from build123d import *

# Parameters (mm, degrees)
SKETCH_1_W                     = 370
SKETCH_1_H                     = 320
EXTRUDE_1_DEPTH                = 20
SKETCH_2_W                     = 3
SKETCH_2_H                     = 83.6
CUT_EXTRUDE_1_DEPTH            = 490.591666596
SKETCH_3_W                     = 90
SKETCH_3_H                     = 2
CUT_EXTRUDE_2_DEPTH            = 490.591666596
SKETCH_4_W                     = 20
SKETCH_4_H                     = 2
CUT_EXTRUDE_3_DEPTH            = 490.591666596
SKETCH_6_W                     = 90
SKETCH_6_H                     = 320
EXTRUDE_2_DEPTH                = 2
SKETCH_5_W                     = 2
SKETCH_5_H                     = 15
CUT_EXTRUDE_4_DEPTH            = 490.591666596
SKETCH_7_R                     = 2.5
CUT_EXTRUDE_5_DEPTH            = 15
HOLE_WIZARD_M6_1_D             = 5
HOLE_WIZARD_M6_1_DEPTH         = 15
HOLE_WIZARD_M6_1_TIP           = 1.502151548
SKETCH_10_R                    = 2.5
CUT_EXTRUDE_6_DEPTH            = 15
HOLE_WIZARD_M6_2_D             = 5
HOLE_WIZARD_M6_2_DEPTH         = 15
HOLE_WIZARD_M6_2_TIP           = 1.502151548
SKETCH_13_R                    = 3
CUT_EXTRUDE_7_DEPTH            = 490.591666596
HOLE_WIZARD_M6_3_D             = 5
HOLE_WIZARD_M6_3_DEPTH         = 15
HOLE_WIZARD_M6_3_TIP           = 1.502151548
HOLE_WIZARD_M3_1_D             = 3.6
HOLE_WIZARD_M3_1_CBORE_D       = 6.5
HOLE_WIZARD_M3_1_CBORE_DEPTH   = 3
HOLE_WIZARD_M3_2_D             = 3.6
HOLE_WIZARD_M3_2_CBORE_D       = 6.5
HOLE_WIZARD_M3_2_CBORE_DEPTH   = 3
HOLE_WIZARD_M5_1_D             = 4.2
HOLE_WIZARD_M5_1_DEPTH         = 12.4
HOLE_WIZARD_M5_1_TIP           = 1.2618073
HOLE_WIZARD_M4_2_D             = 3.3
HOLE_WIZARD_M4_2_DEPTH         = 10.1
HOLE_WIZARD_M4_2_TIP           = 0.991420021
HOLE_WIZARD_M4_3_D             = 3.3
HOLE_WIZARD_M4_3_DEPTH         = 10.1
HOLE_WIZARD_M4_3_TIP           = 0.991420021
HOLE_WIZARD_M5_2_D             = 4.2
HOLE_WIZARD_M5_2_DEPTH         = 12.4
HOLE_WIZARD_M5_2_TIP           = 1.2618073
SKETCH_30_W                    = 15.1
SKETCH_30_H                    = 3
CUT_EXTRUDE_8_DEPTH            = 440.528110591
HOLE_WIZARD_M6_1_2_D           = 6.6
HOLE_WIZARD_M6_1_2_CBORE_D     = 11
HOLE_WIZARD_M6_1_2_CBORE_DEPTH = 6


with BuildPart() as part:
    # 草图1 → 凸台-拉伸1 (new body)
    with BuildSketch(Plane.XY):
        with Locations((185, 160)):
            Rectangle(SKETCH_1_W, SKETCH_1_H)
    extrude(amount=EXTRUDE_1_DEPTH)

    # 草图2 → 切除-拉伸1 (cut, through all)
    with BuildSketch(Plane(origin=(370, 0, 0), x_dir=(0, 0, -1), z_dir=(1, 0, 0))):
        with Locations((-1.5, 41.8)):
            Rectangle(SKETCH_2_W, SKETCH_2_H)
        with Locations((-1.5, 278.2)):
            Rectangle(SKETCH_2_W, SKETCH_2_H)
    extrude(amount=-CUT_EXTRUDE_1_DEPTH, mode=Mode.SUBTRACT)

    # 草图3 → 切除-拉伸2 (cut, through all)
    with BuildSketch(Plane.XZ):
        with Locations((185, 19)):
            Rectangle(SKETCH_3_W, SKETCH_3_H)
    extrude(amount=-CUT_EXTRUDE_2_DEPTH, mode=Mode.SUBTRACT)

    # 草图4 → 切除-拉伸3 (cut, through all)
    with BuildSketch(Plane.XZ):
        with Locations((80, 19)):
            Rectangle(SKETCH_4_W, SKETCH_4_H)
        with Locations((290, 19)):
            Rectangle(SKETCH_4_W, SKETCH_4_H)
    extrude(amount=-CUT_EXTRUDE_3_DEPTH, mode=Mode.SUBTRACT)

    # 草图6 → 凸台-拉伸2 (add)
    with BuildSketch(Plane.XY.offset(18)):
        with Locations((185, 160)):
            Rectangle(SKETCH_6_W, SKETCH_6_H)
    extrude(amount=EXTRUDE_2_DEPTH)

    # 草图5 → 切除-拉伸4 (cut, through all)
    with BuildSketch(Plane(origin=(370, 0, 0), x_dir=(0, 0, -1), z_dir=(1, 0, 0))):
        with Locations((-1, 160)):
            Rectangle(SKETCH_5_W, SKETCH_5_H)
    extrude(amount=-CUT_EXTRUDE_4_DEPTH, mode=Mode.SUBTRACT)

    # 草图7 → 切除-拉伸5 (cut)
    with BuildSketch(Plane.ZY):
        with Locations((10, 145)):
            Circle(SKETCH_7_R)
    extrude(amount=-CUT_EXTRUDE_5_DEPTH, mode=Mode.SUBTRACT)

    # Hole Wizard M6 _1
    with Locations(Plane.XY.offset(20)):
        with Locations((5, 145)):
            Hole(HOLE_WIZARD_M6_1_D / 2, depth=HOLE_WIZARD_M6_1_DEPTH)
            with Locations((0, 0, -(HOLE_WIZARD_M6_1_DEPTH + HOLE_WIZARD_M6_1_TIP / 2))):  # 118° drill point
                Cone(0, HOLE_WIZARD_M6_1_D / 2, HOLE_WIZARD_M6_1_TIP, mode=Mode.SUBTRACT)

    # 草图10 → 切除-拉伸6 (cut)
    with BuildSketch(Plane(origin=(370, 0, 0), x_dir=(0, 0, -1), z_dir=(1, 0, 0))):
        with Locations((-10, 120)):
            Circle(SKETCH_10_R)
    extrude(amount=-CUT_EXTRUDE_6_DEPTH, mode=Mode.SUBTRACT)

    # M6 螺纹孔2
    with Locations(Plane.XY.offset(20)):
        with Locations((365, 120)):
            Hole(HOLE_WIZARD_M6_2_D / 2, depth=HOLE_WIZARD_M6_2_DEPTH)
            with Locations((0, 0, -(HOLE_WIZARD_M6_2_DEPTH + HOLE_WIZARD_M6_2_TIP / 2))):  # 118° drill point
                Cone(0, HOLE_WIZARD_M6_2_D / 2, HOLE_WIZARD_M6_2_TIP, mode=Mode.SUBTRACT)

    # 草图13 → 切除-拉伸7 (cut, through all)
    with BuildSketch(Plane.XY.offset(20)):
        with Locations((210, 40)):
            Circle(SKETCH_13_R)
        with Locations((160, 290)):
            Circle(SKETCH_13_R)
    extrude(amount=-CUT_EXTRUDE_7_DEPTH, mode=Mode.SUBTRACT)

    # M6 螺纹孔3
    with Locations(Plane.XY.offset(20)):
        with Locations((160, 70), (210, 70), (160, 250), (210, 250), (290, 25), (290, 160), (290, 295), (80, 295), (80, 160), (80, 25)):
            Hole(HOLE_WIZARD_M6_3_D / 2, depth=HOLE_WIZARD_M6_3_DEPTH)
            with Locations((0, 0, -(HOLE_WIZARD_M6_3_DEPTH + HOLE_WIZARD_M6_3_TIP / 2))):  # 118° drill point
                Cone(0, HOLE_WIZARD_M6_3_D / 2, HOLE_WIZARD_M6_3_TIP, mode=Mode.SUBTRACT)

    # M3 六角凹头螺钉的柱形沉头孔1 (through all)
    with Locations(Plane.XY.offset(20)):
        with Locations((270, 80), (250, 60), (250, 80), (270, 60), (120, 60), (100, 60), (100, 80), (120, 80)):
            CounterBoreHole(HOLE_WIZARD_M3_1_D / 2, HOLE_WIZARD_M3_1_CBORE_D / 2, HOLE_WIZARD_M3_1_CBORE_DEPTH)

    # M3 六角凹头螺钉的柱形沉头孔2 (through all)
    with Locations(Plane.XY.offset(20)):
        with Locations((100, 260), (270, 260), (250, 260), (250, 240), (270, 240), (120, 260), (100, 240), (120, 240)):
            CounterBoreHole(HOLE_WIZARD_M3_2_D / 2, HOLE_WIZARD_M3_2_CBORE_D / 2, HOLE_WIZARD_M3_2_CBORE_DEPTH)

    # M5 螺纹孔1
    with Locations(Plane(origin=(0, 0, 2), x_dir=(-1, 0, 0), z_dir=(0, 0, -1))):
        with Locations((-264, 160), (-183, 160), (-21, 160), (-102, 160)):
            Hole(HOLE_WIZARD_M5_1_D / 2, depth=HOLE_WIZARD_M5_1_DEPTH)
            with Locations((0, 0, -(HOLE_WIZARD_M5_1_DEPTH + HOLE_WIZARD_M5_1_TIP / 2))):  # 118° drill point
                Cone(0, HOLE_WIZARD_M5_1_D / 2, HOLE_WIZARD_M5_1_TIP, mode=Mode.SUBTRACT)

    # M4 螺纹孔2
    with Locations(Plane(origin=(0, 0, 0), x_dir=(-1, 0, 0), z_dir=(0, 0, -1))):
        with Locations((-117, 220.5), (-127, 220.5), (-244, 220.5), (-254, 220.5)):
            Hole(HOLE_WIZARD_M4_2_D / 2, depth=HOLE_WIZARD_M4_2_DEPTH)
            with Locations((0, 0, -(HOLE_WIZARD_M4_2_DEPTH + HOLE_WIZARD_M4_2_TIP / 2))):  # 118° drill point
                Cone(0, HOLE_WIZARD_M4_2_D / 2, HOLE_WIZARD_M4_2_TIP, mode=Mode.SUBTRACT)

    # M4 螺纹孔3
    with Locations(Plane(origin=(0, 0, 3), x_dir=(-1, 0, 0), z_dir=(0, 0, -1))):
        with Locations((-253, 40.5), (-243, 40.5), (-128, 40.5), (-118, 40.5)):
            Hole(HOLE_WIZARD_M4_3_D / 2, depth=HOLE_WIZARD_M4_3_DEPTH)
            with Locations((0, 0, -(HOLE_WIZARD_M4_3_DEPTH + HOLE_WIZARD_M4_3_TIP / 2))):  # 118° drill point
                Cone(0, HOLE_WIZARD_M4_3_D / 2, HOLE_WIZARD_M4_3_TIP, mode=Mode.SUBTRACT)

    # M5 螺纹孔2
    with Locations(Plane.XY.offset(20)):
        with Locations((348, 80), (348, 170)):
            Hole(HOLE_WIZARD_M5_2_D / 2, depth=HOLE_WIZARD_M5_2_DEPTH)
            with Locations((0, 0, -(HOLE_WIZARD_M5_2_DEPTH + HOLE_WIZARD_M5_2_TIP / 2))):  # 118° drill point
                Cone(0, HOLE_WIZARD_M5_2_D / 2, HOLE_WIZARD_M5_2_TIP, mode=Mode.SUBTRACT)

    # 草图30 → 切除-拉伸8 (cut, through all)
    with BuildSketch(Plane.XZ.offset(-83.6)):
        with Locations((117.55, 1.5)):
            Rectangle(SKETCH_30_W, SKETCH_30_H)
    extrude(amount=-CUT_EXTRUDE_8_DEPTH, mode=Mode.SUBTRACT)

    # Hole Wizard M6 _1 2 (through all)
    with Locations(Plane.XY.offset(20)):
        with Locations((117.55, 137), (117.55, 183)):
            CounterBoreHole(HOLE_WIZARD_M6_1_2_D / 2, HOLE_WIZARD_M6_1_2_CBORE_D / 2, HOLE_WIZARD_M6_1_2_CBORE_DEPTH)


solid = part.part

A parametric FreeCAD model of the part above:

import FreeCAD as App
import Part
import Sketcher

V = App.Vector

doc = App.newDocument("Part")
params = doc.addObject("Spreadsheet::Sheet", "Params")
for row, (alias, value) in enumerate([
    ("sketch1_width", "370 mm"),
    ("sketch1_height", "320 mm"),
    ("pad1_length", "20 mm"),
    ("sketch2_height", "3 mm"),
    ("sketch2_width", "83.6 mm"),
    ("sketch3_width", "90 mm"),
    ("sketch3_height", "2 mm"),
    ("sketch4_width", "20 mm"),
    ("sketch4_height", "2 mm"),
    ("sketch5_width", "90 mm"),
    ("sketch5_height", "320 mm"),
    ("pad2_length", "2 mm"),
    ("sketch6_width", "15 mm"),
    ("sketch6_height", "2 mm"),
    ("sketch7_diameter", "5 mm"),
    ("pocket5_length", "15 mm"),
    ("sketch8_diameter", "5 mm"),
    ("hole_diameter", "5 mm"),
    ("hole_depth", "15 mm"),
    ("sketch9_diameter", "5 mm"),
    ("pocket6_length", "15 mm"),
    ("sketch10_diameter", "5 mm"),
    ("hole2_diameter", "5 mm"),
    ("hole2_depth", "15 mm"),
    ("sketch11_diameter", "6 mm"),
    ("sketch12_diameter", "5 mm"),
    ("hole3_diameter", "5 mm"),
    ("hole3_depth", "15 mm"),
    ("sketch13_diameter", "3.6 mm"),
    ("hole4_diameter", "3.6 mm"),
    ("hole4_cbore_diameter", "6.5 mm"),
    ("hole4_cbore_depth", "3 mm"),
    ("sketch14_diameter", "3.6 mm"),
    ("hole5_diameter", "3.6 mm"),
    ("hole5_cbore_diameter", "6.5 mm"),
    ("hole5_cbore_depth", "3 mm"),
    ("sketch15_diameter", "4.2 mm"),
    ("hole6_diameter", "4.2 mm"),
    ("hole6_depth", "12.4 mm"),
    ("sketch16_diameter", "3.3 mm"),
    ("hole7_diameter", "3.3 mm"),
    ("hole7_depth", "10.1 mm"),
    ("sketch17_diameter", "3.3 mm"),
    ("hole8_diameter", "3.3 mm"),
    ("hole8_depth", "10.1 mm"),
    ("sketch18_diameter", "4.2 mm"),
    ("hole9_diameter", "4.2 mm"),
    ("hole9_depth", "12.4 mm"),
    ("sketch19_height", "3 mm"),
    ("sketch19_width", "15.1 mm"),
    ("sketch20_diameter", "6.6 mm"),
    ("hole10_diameter", "6.6 mm"),
    ("hole10_cbore_diameter", "11 mm"),
    ("hole10_cbore_depth", "6 mm"),
], start=1):
    params.set(f"A{row}", alias)
    params.set(f"B{row}", "=" + value)
    params.setAlias(f"B{row}", alias)

body = doc.addObject("PartDesign::Body", "Body")

# Sketch on XY plane
sketch1 = doc.addObject("Sketcher::SketchObject", "Sketch")
body.addObject(sketch1)
sketch1.AttachmentSupport = (doc.XY_Plane, [""])
sketch1.MapMode = "FlatFace"
sketch1.addGeometry([
    Part.LineSegment(V(0, 320, 0), V(0, 0, 0)),
    Part.LineSegment(V(0, 0, 0), V(370, 0, 0)),
    Part.LineSegment(V(370, 0, 0), V(370, 320, 0)),
    Part.LineSegment(V(370, 320, 0), V(0, 320, 0)),
], False)
sketch1.addConstraint([
    Sketcher.Constraint("Coincident", 0, 2, 1, 1),
    Sketcher.Constraint("Coincident", 1, 2, 2, 1),
    Sketcher.Constraint("Coincident", 2, 2, 3, 1),
    Sketcher.Constraint("Coincident", 3, 2, 0, 1),
    Sketcher.Constraint("Vertical", 0),
    Sketcher.Constraint("Horizontal", 1),
    Sketcher.Constraint("Vertical", 2),
    Sketcher.Constraint("Horizontal", 3),
    Sketcher.Constraint("Coincident", 0, 2, -1, 1),
    Sketcher.Constraint("DistanceX", 1, 1, 1, 2, 370.0),
    Sketcher.Constraint("DistanceY", 0, 2, 0, 1, 320.0),
])
sketch1.setExpression("Constraints[9]", "Params.sketch1_width")
sketch1.setExpression("Constraints[10]", "Params.sketch1_height")
pad1 = doc.addObject("PartDesign::Pad", "Pad")
body.addObject(pad1)
pad1.Profile = sketch1
pad1.setExpression("Length", "Params.pad1_length")

# Sketch on YZ plane
sketch2 = doc.addObject("Sketcher::SketchObject", "Sketch001")
body.addObject(sketch2)
sketch2.AttachmentSupport = (doc.YZ_Plane, [""])
sketch2.MapMode = "FlatFace"
sketch2.AttachmentOffset = App.Placement(V(0, 0, 370), App.Rotation())
sketch2.addGeometry([
    Part.LineSegment(V(83.6, 3, 0), V(0, 3, 0)),  # 0
    Part.LineSegment(V(0, 3, 0), V(0, 0, 0)),  # 1
    Part.LineSegment(V(0, 0, 0), V(83.6, 0, 0)),  # 2
    Part.LineSegment(V(83.6, 0, 0), V(83.6, 3, 0)),  # 3
    Part.LineSegment(V(320, 3, 0), V(236.4, 3, 0)),  # 4
    Part.LineSegment(V(236.4, 3, 0), V(236.4, 0, 0)),  # 5
    Part.LineSegment(V(236.4, 0, 0), V(320, 0, 0)),  # 6
    Part.LineSegment(V(320, 0, 0), V(320, 3, 0)),  # 7
], False)
sketch2.addConstraint([
    Sketcher.Constraint("Coincident", 0, 2, 1, 1),
    Sketcher.Constraint("Coincident", 1, 2, 2, 1),
    Sketcher.Constraint("Coincident", 2, 2, 3, 1),
    Sketcher.Constraint("Coincident", 3, 2, 0, 1),
    Sketcher.Constraint("Coincident", 4, 2, 5, 1),
    Sketcher.Constraint("Coincident", 5, 2, 6, 1),
    Sketcher.Constraint("Coincident", 6, 2, 7, 1),
    Sketcher.Constraint("Coincident", 7, 2, 4, 1),
    Sketcher.Constraint("Horizontal", 0),
    Sketcher.Constraint("Vertical", 1),
    Sketcher.Constraint("Horizontal", 2),
    Sketcher.Constraint("Vertical", 3),
    Sketcher.Constraint("Horizontal", 4),
    Sketcher.Constraint("Vertical", 5),
    Sketcher.Constraint("Horizontal", 6),
    Sketcher.Constraint("Vertical", 7),
    Sketcher.Constraint("Coincident", 1, 2, -1, 1),
    Sketcher.Constraint("PointOnObject", 5, 2, -1),
    Sketcher.Constraint("Horizontal", 3, 2, 4, 2),
    Sketcher.Constraint("Equal", 2, 4),
    Sketcher.Constraint("DistanceY", 1, 2, 1, 1, 3.0),
    Sketcher.Constraint("DistanceX", 0, 2, 0, 1, 83.6),
    Sketcher.Constraint("DistanceX", -1, 1, 6, 2, 320.0),
])
sketch2.setExpression("Constraints[20]", "Params.sketch2_height")
sketch2.setExpression("Constraints[21]", "Params.sketch2_width")
pocket1 = doc.addObject("PartDesign::Pocket", "Pocket")
body.addObject(pocket1)
pocket1.Profile = sketch2
pocket1.Type = "ThroughAll"

# Sketch on XZ plane
sketch3 = doc.addObject("Sketcher::SketchObject", "Sketch002")
body.addObject(sketch3)
sketch3.AttachmentSupport = (doc.XZ_Plane, [""])
sketch3.MapMode = "FlatFace"
sketch3.addGeometry([
    Part.LineSegment(V(140, 20, 0), V(140, 18, 0)),
    Part.LineSegment(V(140, 18, 0), V(230, 18, 0)),
    Part.LineSegment(V(230, 18, 0), V(230, 20, 0)),
    Part.LineSegment(V(230, 20, 0), V(140, 20, 0)),
], False)
sketch3.addConstraint([
    Sketcher.Constraint("Coincident", 0, 2, 1, 1),
    Sketcher.Constraint("Coincident", 1, 2, 2, 1),
    Sketcher.Constraint("Coincident", 2, 2, 3, 1),
    Sketcher.Constraint("Coincident", 3, 2, 0, 1),
    Sketcher.Constraint("Vertical", 0),
    Sketcher.Constraint("Horizontal", 1),
    Sketcher.Constraint("Vertical", 2),
    Sketcher.Constraint("Horizontal", 3),
    Sketcher.Constraint("DistanceX", 1, 1, 1, 2, 90.0),
    Sketcher.Constraint("DistanceY", 0, 2, 0, 1, 2.0),
    Sketcher.Constraint("DistanceX", -1, 1, 0, 2, 140.0),
    Sketcher.Constraint("DistanceY", -1, 1, 0, 2, 18.0),
])
sketch3.setExpression("Constraints[8]", "Params.sketch3_width")
sketch3.setExpression("Constraints[9]", "Params.sketch3_height")
pocket2 = doc.addObject("PartDesign::Pocket", "Pocket001")
body.addObject(pocket2)
pocket2.Profile = sketch3
pocket2.Type = "ThroughAll"

# Sketch on XZ plane
sketch4 = doc.addObject("Sketcher::SketchObject", "Sketch003")
body.addObject(sketch4)
sketch4.AttachmentSupport = (doc.XZ_Plane, [""])
sketch4.MapMode = "FlatFace"
sketch4.addGeometry([
    Part.LineSegment(V(70, 20, 0), V(70, 18, 0)),  # 0
    Part.LineSegment(V(70, 18, 0), V(90, 18, 0)),  # 1
    Part.LineSegment(V(90, 18, 0), V(90, 20, 0)),  # 2
    Part.LineSegment(V(90, 20, 0), V(70, 20, 0)),  # 3
    Part.LineSegment(V(280, 20, 0), V(280, 18, 0)),  # 4
    Part.LineSegment(V(280, 18, 0), V(300, 18, 0)),  # 5
    Part.LineSegment(V(300, 18, 0), V(300, 20, 0)),  # 6
    Part.LineSegment(V(300, 20, 0), V(280, 20, 0)),  # 7
], False)
sketch4.addConstraint([
    Sketcher.Constraint("Coincident", 0, 2, 1, 1),
    Sketcher.Constraint("Coincident", 1, 2, 2, 1),
    Sketcher.Constraint("Coincident", 2, 2, 3, 1),
    Sketcher.Constraint("Coincident", 3, 2, 0, 1),
    Sketcher.Constraint("Coincident", 4, 2, 5, 1),
    Sketcher.Constraint("Coincident", 5, 2, 6, 1),
    Sketcher.Constraint("Coincident", 6, 2, 7, 1),
    Sketcher.Constraint("Coincident", 7, 2, 4, 1),
    Sketcher.Constraint("Vertical", 0),
    Sketcher.Constraint("Horizontal", 1),
    Sketcher.Constraint("Vertical", 2),
    Sketcher.Constraint("Horizontal", 3),
    Sketcher.Constraint("Vertical", 4),
    Sketcher.Constraint("Horizontal", 5),
    Sketcher.Constraint("Vertical", 6),
    Sketcher.Constraint("Horizontal", 7),
    Sketcher.Constraint("Horizontal", 1, 2, 4, 2),
    Sketcher.Constraint("Horizontal", 3, 2, 6, 2),
    Sketcher.Constraint("Equal", 3, 5),
    Sketcher.Constraint("DistanceX", 1, 1, 1, 2, 20.0),
    Sketcher.Constraint("DistanceY", 0, 2, 0, 1, 2.0),
    Sketcher.Constraint("DistanceX", -1, 1, 0, 2, 70.0),
    Sketcher.Constraint("DistanceY", -1, 1, 0, 2, 18.0),
    Sketcher.Constraint("DistanceX", -1, 1, 4, 2, 280.0),
])
sketch4.setExpression("Constraints[19]", "Params.sketch4_width")
sketch4.setExpression("Constraints[20]", "Params.sketch4_height")
pocket3 = doc.addObject("PartDesign::Pocket", "Pocket002")
body.addObject(pocket3)
pocket3.Profile = sketch4
pocket3.Type = "ThroughAll"

# Sketch on XY plane
sketch5 = doc.addObject("Sketcher::SketchObject", "Sketch004")
body.addObject(sketch5)
sketch5.AttachmentSupport = (doc.XY_Plane, [""])
sketch5.MapMode = "FlatFace"
sketch5.AttachmentOffset = App.Placement(V(0, 0, 18), App.Rotation())
sketch5.addGeometry([
    Part.LineSegment(V(140, 320, 0), V(140, 0, 0)),
    Part.LineSegment(V(140, 0, 0), V(230, 0, 0)),
    Part.LineSegment(V(230, 0, 0), V(230, 320, 0)),
    Part.LineSegment(V(230, 320, 0), V(140, 320, 0)),
], False)
sketch5.addConstraint([
    Sketcher.Constraint("Coincident", 0, 2, 1, 1),
    Sketcher.Constraint("Coincident", 1, 2, 2, 1),
    Sketcher.Constraint("Coincident", 2, 2, 3, 1),
    Sketcher.Constraint("Coincident", 3, 2, 0, 1),
    Sketcher.Constraint("Vertical", 0),
    Sketcher.Constraint("Horizontal", 1),
    Sketcher.Constraint("Vertical", 2),
    Sketcher.Constraint("Horizontal", 3),
    Sketcher.Constraint("PointOnObject", 0, 2, -1),
    Sketcher.Constraint("DistanceX", 1, 1, 1, 2, 90.0),
    Sketcher.Constraint("DistanceY", 0, 2, 0, 1, 320.0),
    Sketcher.Constraint("DistanceX", -1, 1, 0, 2, 140.0),
])
sketch5.setExpression("Constraints[9]", "Params.sketch5_width")
sketch5.setExpression("Constraints[10]", "Params.sketch5_height")
pad2 = doc.addObject("PartDesign::Pad", "Pad001")
body.addObject(pad2)
pad2.Profile = sketch5
pad2.setExpression("Length", "Params.pad2_length")

# Sketch on YZ plane
sketch6 = doc.addObject("Sketcher::SketchObject", "Sketch005")
body.addObject(sketch6)
sketch6.AttachmentSupport = (doc.YZ_Plane, [""])
sketch6.MapMode = "FlatFace"
sketch6.AttachmentOffset = App.Placement(V(0, 0, 370), App.Rotation())
sketch6.addGeometry([
    Part.LineSegment(V(167.5, 2, 0), V(152.5, 2, 0)),
    Part.LineSegment(V(152.5, 2, 0), V(152.5, 0, 0)),
    Part.LineSegment(V(152.5, 0, 0), V(167.5, 0, 0)),
    Part.LineSegment(V(167.5, 0, 0), V(167.5, 2, 0)),
], False)
sketch6.addConstraint([
    Sketcher.Constraint("Coincident", 0, 2, 1, 1),
    Sketcher.Constraint("Coincident", 1, 2, 2, 1),
    Sketcher.Constraint("Coincident", 2, 2, 3, 1),
    Sketcher.Constraint("Coincident", 3, 2, 0, 1),
    Sketcher.Constraint("Horizontal", 0),
    Sketcher.Constraint("Vertical", 1),
    Sketcher.Constraint("Horizontal", 2),
    Sketcher.Constraint("Vertical", 3),
    Sketcher.Constraint("PointOnObject", 1, 2, -1),
    Sketcher.Constraint("DistanceX", 0, 2, 0, 1, 15.0),
    Sketcher.Constraint("DistanceY", 1, 2, 1, 1, 2.0),
    Sketcher.Constraint("DistanceX", -1, 1, 0, 2, 152.5),
])
sketch6.setExpression("Constraints[9]", "Params.sketch6_width")
sketch6.setExpression("Constraints[10]", "Params.sketch6_height")
pocket4 = doc.addObject("PartDesign::Pocket", "Pocket003")
body.addObject(pocket4)
pocket4.Profile = sketch6
pocket4.Type = "ThroughAll"

# Sketch on YZ plane
sketch7 = doc.addObject("Sketcher::SketchObject", "Sketch006")
body.addObject(sketch7)
sketch7.AttachmentSupport = (doc.YZ_Plane, [""])
sketch7.MapMode = "FlatFace"
sketch7.addGeometry(Part.Circle(V(145, 10, 0), V(0, 0, 1), 2.5), False)
sketch7.addConstraint([
    Sketcher.Constraint("Diameter", 0, 5.0),
    Sketcher.Constraint("DistanceX", -1, 1, 0, 3, 145.0),
    Sketcher.Constraint("DistanceY", -1, 1, 0, 3, 10.0),
])
sketch7.setExpression("Constraints[0]", "Params.sketch7_diameter")
pocket5 = doc.addObject("PartDesign::Pocket", "Pocket004")
body.addObject(pocket5)
pocket5.Profile = sketch7
pocket5.setExpression("Length", "Params.pocket5_length")
pocket5.Reversed = True

# Sketch on XY plane
sketch8 = doc.addObject("Sketcher::SketchObject", "Sketch007")
body.addObject(sketch8)
sketch8.AttachmentSupport = (doc.XY_Plane, [""])
sketch8.MapMode = "FlatFace"
sketch8.AttachmentOffset = App.Placement(V(0, 0, 20), App.Rotation())
sketch8.addGeometry(Part.Circle(V(5, 145, 0), V(0, 0, 1), 2.5), False)
sketch8.addConstraint([
    Sketcher.Constraint("Diameter", 0, 5.0),
    Sketcher.Constraint("DistanceX", -1, 1, 0, 3, 5.0),
    Sketcher.Constraint("DistanceY", -1, 1, 0, 3, 145.0),
])
sketch8.setExpression("Constraints[0]", "Params.sketch8_diameter")
doc.recompute()
hole = doc.addObject("PartDesign::Hole", "Hole")
body.addObject(hole)
hole.Profile = sketch8
hole.ThreadType = "None"
hole.setExpression("Diameter", "Params.hole_diameter")
hole.DepthType = "Dimension"
hole.setExpression("Depth", "Params.hole_depth")
hole.DrillPoint = "Angled"
hole.DrillPointAngle = 118

# Sketch on YZ plane
sketch9 = doc.addObject("Sketcher::SketchObject", "Sketch008")
body.addObject(sketch9)
sketch9.AttachmentSupport = (doc.YZ_Plane, [""])
sketch9.MapMode = "FlatFace"
sketch9.AttachmentOffset = App.Placement(V(0, 0, 370), App.Rotation())
sketch9.addGeometry(Part.Circle(V(120, 10, 0), V(0, 0, 1), 2.5), False)
sketch9.addConstraint([
    Sketcher.Constraint("Diameter", 0, 5.0),
    Sketcher.Constraint("DistanceX", -1, 1, 0, 3, 120.0),
    Sketcher.Constraint("DistanceY", -1, 1, 0, 3, 10.0),
])
sketch9.setExpression("Constraints[0]", "Params.sketch9_diameter")
pocket6 = doc.addObject("PartDesign::Pocket", "Pocket005")
body.addObject(pocket6)
pocket6.Profile = sketch9
pocket6.setExpression("Length", "Params.pocket6_length")

# Sketch on XY plane
sketch10 = doc.addObject("Sketcher::SketchObject", "Sketch009")
body.addObject(sketch10)
sketch10.AttachmentSupport = (doc.XY_Plane, [""])
sketch10.MapMode = "FlatFace"
sketch10.AttachmentOffset = App.Placement(V(0, 0, 20), App.Rotation())
sketch10.addGeometry(Part.Circle(V(365, 120, 0), V(0, 0, 1), 2.5), False)
sketch10.addConstraint([
    Sketcher.Constraint("Diameter", 0, 5.0),
    Sketcher.Constraint("DistanceX", -1, 1, 0, 3, 365.0),
    Sketcher.Constraint("DistanceY", -1, 1, 0, 3, 120.0),
])
sketch10.setExpression("Constraints[0]", "Params.sketch10_diameter")
doc.recompute()
hole2 = doc.addObject("PartDesign::Hole", "Hole001")
body.addObject(hole2)
hole2.Profile = sketch10
hole2.ThreadType = "None"
hole2.setExpression("Diameter", "Params.hole2_diameter")
hole2.DepthType = "Dimension"
hole2.setExpression("Depth", "Params.hole2_depth")
hole2.DrillPoint = "Angled"
hole2.DrillPointAngle = 118

# Sketch on XY plane
sketch11 = doc.addObject("Sketcher::SketchObject", "Sketch010")
body.addObject(sketch11)
sketch11.AttachmentSupport = (doc.XY_Plane, [""])
sketch11.MapMode = "FlatFace"
sketch11.AttachmentOffset = App.Placement(V(0, 0, 20), App.Rotation())
sketch11.addGeometry([
    Part.Circle(V(210, 40, 0), V(0, 0, 1), 3),
    Part.Circle(V(160, 290, 0), V(0, 0, 1), 3),
], False)
sketch11.addConstraint([
    Sketcher.Constraint("Equal", 0, 1),
    Sketcher.Constraint("Diameter", 0, 6.0),
    Sketcher.Constraint("DistanceX", -1, 1, 0, 3, 210.0),
    Sketcher.Constraint("DistanceY", -1, 1, 0, 3, 40.0),
    Sketcher.Constraint("DistanceX", -1, 1, 1, 3, 160.0),
    Sketcher.Constraint("DistanceY", -1, 1, 1, 3, 290.0),
])
sketch11.setExpression("Constraints[1]", "Params.sketch11_diameter")
pocket7 = doc.addObject("PartDesign::Pocket", "Pocket006")
body.addObject(pocket7)
pocket7.Profile = sketch11
pocket7.Type = "ThroughAll"

# Sketch on XY plane
sketch12 = doc.addObject("Sketcher::SketchObject", "Sketch011")
body.addObject(sketch12)
sketch12.AttachmentSupport = (doc.XY_Plane, [""])
sketch12.MapMode = "FlatFace"
sketch12.AttachmentOffset = App.Placement(V(0, 0, 20), App.Rotation())
sketch12.addGeometry([
    Part.Circle(V(160, 70, 0), V(0, 0, 1), 2.5),  # 0
    Part.Circle(V(210, 70, 0), V(0, 0, 1), 2.5),  # 1
    Part.Circle(V(160, 250, 0), V(0, 0, 1), 2.5),  # 2
    Part.Circle(V(210, 250, 0), V(0, 0, 1), 2.5),  # 3
    Part.Circle(V(290, 25, 0), V(0, 0, 1), 2.5),  # 4
    Part.Circle(V(290, 160, 0), V(0, 0, 1), 2.5),  # 5
    Part.Circle(V(290, 295, 0), V(0, 0, 1), 2.5),  # 6
    Part.Circle(V(80, 295, 0), V(0, 0, 1), 2.5),  # 7
    Part.Circle(V(80, 160, 0), V(0, 0, 1), 2.5),  # 8
    Part.Circle(V(80, 25, 0), V(0, 0, 1), 2.5),  # 9
], False)
sketch12.addConstraint([
    Sketcher.Constraint("Equal", 0, 1),
    Sketcher.Constraint("Equal", 1, 2),
    Sketcher.Constraint("Equal", 2, 3),
    Sketcher.Constraint("Equal", 3, 4),
    Sketcher.Constraint("Equal", 4, 5),
    Sketcher.Constraint("Equal", 5, 6),
    Sketcher.Constraint("Equal", 6, 7),
    Sketcher.Constraint("Equal", 7, 8),
    Sketcher.Constraint("Equal", 8, 9),
    Sketcher.Constraint("Horizontal", 0, 3, 1, 3),
    Sketcher.Constraint("Horizontal", 2, 3, 3, 3),
    Sketcher.Constraint("Horizontal", 6, 3, 7, 3),
    Sketcher.Constraint("Horizontal", 5, 3, 8, 3),
    Sketcher.Constraint("Horizontal", 4, 3, 9, 3),
    Sketcher.Constraint("Vertical", 0, 3, 2, 3),
    Sketcher.Constraint("Vertical", 1, 3, 3, 3),
    Sketcher.Constraint("Vertical", 4, 3, 5, 3),
    Sketcher.Constraint("Vertical", 5, 3, 6, 3),
    Sketcher.Constraint("Vertical", 7, 3, 8, 3),
    Sketcher.Constraint("Vertical", 8, 3, 9, 3),
    Sketcher.Constraint("Diameter", 0, 5.0),
    Sketcher.Constraint("DistanceX", -1, 1, 0, 3, 160.0),
    Sketcher.Constraint("DistanceY", -1, 1, 0, 3, 70.0),
    Sketcher.Constraint("DistanceX", -1, 1, 1, 3, 210.0),
    Sketcher.Constraint("DistanceY", -1, 1, 2, 3, 250.0),
    Sketcher.Constraint("DistanceX", -1, 1, 4, 3, 290.0),
    Sketcher.Constraint("DistanceY", -1, 1, 4, 3, 25.0),
    Sketcher.Constraint("DistanceY", -1, 1, 5, 3, 160.0),
    Sketcher.Constraint("DistanceY", -1, 1, 6, 3, 295.0),
    Sketcher.Constraint("DistanceX", -1, 1, 7, 3, 80.0),
])
sketch12.setExpression("Constraints[20]", "Params.sketch12_diameter")
doc.recompute()
hole3 = doc.addObject("PartDesign::Hole", "Hole002")
body.addObject(hole3)
hole3.Profile = sketch12
hole3.ThreadType = "None"
hole3.setExpression("Diameter", "Params.hole3_diameter")
hole3.DepthType = "Dimension"
hole3.setExpression("Depth", "Params.hole3_depth")
hole3.DrillPoint = "Angled"
hole3.DrillPointAngle = 118

# Sketch on XY plane
sketch13 = doc.addObject("Sketcher::SketchObject", "Sketch012")
body.addObject(sketch13)
sketch13.AttachmentSupport = (doc.XY_Plane, [""])
sketch13.MapMode = "FlatFace"
sketch13.AttachmentOffset = App.Placement(V(0, 0, 20), App.Rotation())
sketch13.addGeometry([
    Part.Circle(V(270, 80, 0), V(0, 0, 1), 1.8),  # 0
    Part.Circle(V(250, 60, 0), V(0, 0, 1), 1.8),  # 1
    Part.Circle(V(250, 80, 0), V(0, 0, 1), 1.8),  # 2
    Part.Circle(V(270, 60, 0), V(0, 0, 1), 1.8),  # 3
    Part.Circle(V(120, 60, 0), V(0, 0, 1), 1.8),  # 4
    Part.Circle(V(100, 60, 0), V(0, 0, 1), 1.8),  # 5
    Part.Circle(V(100, 80, 0), V(0, 0, 1), 1.8),  # 6
    Part.Circle(V(120, 80, 0), V(0, 0, 1), 1.8),  # 7
], False)
sketch13.addConstraint([
    Sketcher.Constraint("Equal", 0, 1),
    Sketcher.Constraint("Equal", 1, 2),
    Sketcher.Constraint("Equal", 2, 3),
    Sketcher.Constraint("Equal", 3, 4),
    Sketcher.Constraint("Equal", 4, 5),
    Sketcher.Constraint("Equal", 5, 6),
    Sketcher.Constraint("Equal", 6, 7),
    Sketcher.Constraint("Horizontal", 0, 3, 2, 3),
    Sketcher.Constraint("Horizontal", 1, 3, 3, 3),
    Sketcher.Constraint("Horizontal", 3, 3, 4, 3),
    Sketcher.Constraint("Horizontal", 4, 3, 5, 3),
    Sketcher.Constraint("Horizontal", 2, 3, 6, 3),
    Sketcher.Constraint("Horizontal", 6, 3, 7, 3),
    Sketcher.Constraint("Vertical", 1, 3, 2, 3),
    Sketcher.Constraint("Vertical", 0, 3, 3, 3),
    Sketcher.Constraint("Vertical", 5, 3, 6, 3),
    Sketcher.Constraint("Vertical", 4, 3, 7, 3),
    Sketcher.Constraint("Diameter", 0, 3.6),
    Sketcher.Constraint("DistanceX", -1, 1, 0, 3, 270.0),
    Sketcher.Constraint("DistanceY", -1, 1, 0, 3, 80.0),
    Sketcher.Constraint("DistanceX", -1, 1, 1, 3, 250.0),
    Sketcher.Constraint("DistanceY", -1, 1, 1, 3, 60.0),
    Sketcher.Constraint("DistanceX", -1, 1, 4, 3, 120.0),
    Sketcher.Constraint("DistanceX", -1, 1, 5, 3, 100.0),
])
sketch13.setExpression("Constraints[17]", "Params.sketch13_diameter")
doc.recompute()
hole4 = doc.addObject("PartDesign::Hole", "Hole003")
body.addObject(hole4)
hole4.Profile = sketch13
hole4.ThreadType = "None"
hole4.setExpression("Diameter", "Params.hole4_diameter")
hole4.DepthType = "ThroughAll"
hole4.HoleCutType = "Counterbore"
hole4.setExpression("HoleCutDiameter", "Params.hole4_cbore_diameter")
hole4.setExpression("HoleCutDepth", "Params.hole4_cbore_depth")

# Sketch on XY plane
sketch14 = doc.addObject("Sketcher::SketchObject", "Sketch013")
body.addObject(sketch14)
sketch14.AttachmentSupport = (doc.XY_Plane, [""])
sketch14.MapMode = "FlatFace"
sketch14.AttachmentOffset = App.Placement(V(0, 0, 20), App.Rotation())
sketch14.addGeometry([
    Part.Circle(V(100, 260, 0), V(0, 0, 1), 1.8),  # 0
    Part.Circle(V(270, 260, 0), V(0, 0, 1), 1.8),  # 1
    Part.Circle(V(250, 260, 0), V(0, 0, 1), 1.8),  # 2
    Part.Circle(V(250, 240, 0), V(0, 0, 1), 1.8),  # 3
    Part.Circle(V(270, 240, 0), V(0, 0, 1), 1.8),  # 4
    Part.Circle(V(120, 260, 0), V(0, 0, 1), 1.8),  # 5
    Part.Circle(V(100, 240, 0), V(0, 0, 1), 1.8),  # 6
    Part.Circle(V(120, 240, 0), V(0, 0, 1), 1.8),  # 7
], False)
sketch14.addConstraint([
    Sketcher.Constraint("Equal", 0, 1),
    Sketcher.Constraint("Equal", 1, 2),
    Sketcher.Constraint("Equal", 2, 3),
    Sketcher.Constraint("Equal", 3, 4),
    Sketcher.Constraint("Equal", 4, 5),
    Sketcher.Constraint("Equal", 5, 6),
    Sketcher.Constraint("Equal", 6, 7),
    Sketcher.Constraint("Horizontal", 0, 3, 1, 3),
    Sketcher.Constraint("Horizontal", 1, 3, 2, 3),
    Sketcher.Constraint("Horizontal", 3, 3, 4, 3),
    Sketcher.Constraint("Horizontal", 2, 3, 5, 3),
    Sketcher.Constraint("Horizontal", 4, 3, 6, 3),
    Sketcher.Constraint("Horizontal", 6, 3, 7, 3),
    Sketcher.Constraint("Vertical", 2, 3, 3, 3),
    Sketcher.Constraint("Vertical", 1, 3, 4, 3),
    Sketcher.Constraint("Vertical", 0, 3, 6, 3),
    Sketcher.Constraint("Vertical", 5, 3, 7, 3),
    Sketcher.Constraint("Diameter", 0, 3.6),
    Sketcher.Constraint("DistanceX", -1, 1, 0, 3, 100.0),
    Sketcher.Constraint("DistanceY", -1, 1, 0, 3, 260.0),
    Sketcher.Constraint("DistanceX", -1, 1, 1, 3, 270.0),
    Sketcher.Constraint("DistanceX", -1, 1, 2, 3, 250.0),
    Sketcher.Constraint("DistanceY", -1, 1, 3, 3, 240.0),
    Sketcher.Constraint("DistanceX", -1, 1, 5, 3, 120.0),
])
sketch14.setExpression("Constraints[17]", "Params.sketch14_diameter")
doc.recompute()
hole5 = doc.addObject("PartDesign::Hole", "Hole004")
body.addObject(hole5)
hole5.Profile = sketch14
hole5.ThreadType = "None"
hole5.setExpression("Diameter", "Params.hole5_diameter")
hole5.DepthType = "ThroughAll"
hole5.HoleCutType = "Counterbore"
hole5.setExpression("HoleCutDiameter", "Params.hole5_cbore_diameter")
hole5.setExpression("HoleCutDepth", "Params.hole5_cbore_depth")

# Sketch on XY plane
sketch15 = doc.addObject("Sketcher::SketchObject", "Sketch014")
body.addObject(sketch15)
sketch15.AttachmentSupport = (doc.XY_Plane, [""])
sketch15.MapMode = "FlatFace"
sketch15.AttachmentOffset = App.Placement(V(0, 0, 2), App.Rotation())
sketch15.addGeometry([
    Part.Circle(V(264, 160, 0), V(0, 0, 1), 2.1),
    Part.Circle(V(183, 160, 0), V(0, 0, 1), 2.1),
    Part.Circle(V(21, 160, 0), V(0, 0, 1), 2.1),
    Part.Circle(V(102, 160, 0), V(0, 0, 1), 2.1),
], False)
sketch15.addConstraint([
    Sketcher.Constraint("Equal", 0, 1),
    Sketcher.Constraint("Equal", 1, 2),
    Sketcher.Constraint("Equal", 2, 3),
    Sketcher.Constraint("Horizontal", 0, 3, 1, 3),
    Sketcher.Constraint("Horizontal", 1, 3, 2, 3),
    Sketcher.Constraint("Horizontal", 2, 3, 3, 3),
    Sketcher.Constraint("Diameter", 0, 4.2),
    Sketcher.Constraint("DistanceX", -1, 1, 0, 3, 264.0),
    Sketcher.Constraint("DistanceY", -1, 1, 0, 3, 160.0),
    Sketcher.Constraint("DistanceX", -1, 1, 1, 3, 183.0),
    Sketcher.Constraint("DistanceX", -1, 1, 2, 3, 21.0),
    Sketcher.Constraint("DistanceX", -1, 1, 3, 3, 102.0),
])
sketch15.setExpression("Constraints[6]", "Params.sketch15_diameter")
doc.recompute()
hole6 = doc.addObject("PartDesign::Hole", "Hole005")
body.addObject(hole6)
hole6.Profile = sketch15
hole6.ThreadType = "None"
hole6.setExpression("Diameter", "Params.hole6_diameter")
hole6.DepthType = "Dimension"
hole6.setExpression("Depth", "Params.hole6_depth")
hole6.DrillPoint = "Angled"
hole6.DrillPointAngle = 118
hole6.Reversed = True

# Sketch on XY plane
sketch16 = doc.addObject("Sketcher::SketchObject", "Sketch015")
body.addObject(sketch16)
sketch16.AttachmentSupport = (doc.XY_Plane, [""])
sketch16.MapMode = "FlatFace"
sketch16.addGeometry([
    Part.Circle(V(117, 220.5, 0), V(0, 0, 1), 1.6),
    Part.Circle(V(127, 220.5, 0), V(0, 0, 1), 1.6),
    Part.Circle(V(244, 220.5, 0), V(0, 0, 1), 1.6),
    Part.Circle(V(254, 220.5, 0), V(0, 0, 1), 1.6),
], False)
sketch16.addConstraint([
    Sketcher.Constraint("Equal", 0, 1),
    Sketcher.Constraint("Equal", 1, 2),
    Sketcher.Constraint("Equal", 2, 3),
    Sketcher.Constraint("Horizontal", 0, 3, 1, 3),
    Sketcher.Constraint("Horizontal", 1, 3, 2, 3),
    Sketcher.Constraint("Horizontal", 2, 3, 3, 3),
    Sketcher.Constraint("Diameter", 0, 3.3),
    Sketcher.Constraint("DistanceX", -1, 1, 0, 3, 117.0),
    Sketcher.Constraint("DistanceX", -1, 1, 1, 3, 127.0),
    Sketcher.Constraint("DistanceX", -1, 1, 2, 3, 244.0),
    Sketcher.Constraint("DistanceX", -1, 1, 3, 3, 254.0),
    Sketcher.Constraint("DistanceY", -1, 1, 0, 3, 220.5),
])
sketch16.setExpression("Constraints[6]", "Params.sketch16_diameter")
doc.recompute()
hole7 = doc.addObject("PartDesign::Hole", "Hole006")
body.addObject(hole7)
hole7.Profile = sketch16
hole7.ThreadType = "None"
hole7.setExpression("Diameter", "Params.hole7_diameter")
hole7.DepthType = "Dimension"
hole7.setExpression("Depth", "Params.hole7_depth")
hole7.DrillPoint = "Angled"
hole7.DrillPointAngle = 118
hole7.Reversed = True

# Sketch on XY plane
sketch17 = doc.addObject("Sketcher::SketchObject", "Sketch016")
body.addObject(sketch17)
sketch17.AttachmentSupport = (doc.XY_Plane, [""])
sketch17.MapMode = "FlatFace"
sketch17.AttachmentOffset = App.Placement(V(0, 0, 3), App.Rotation())
sketch17.addGeometry([
    Part.Circle(V(253, 40.5, 0), V(0, 0, 1), 1.6),
    Part.Circle(V(243, 40.5, 0), V(0, 0, 1), 1.6),
    Part.Circle(V(128, 40.5, 0), V(0, 0, 1), 1.6),
    Part.Circle(V(118, 40.5, 0), V(0, 0, 1), 1.6),
], False)
sketch17.addConstraint([
    Sketcher.Constraint("Equal", 0, 1),
    Sketcher.Constraint("Equal", 1, 2),
    Sketcher.Constraint("Equal", 2, 3),
    Sketcher.Constraint("Horizontal", 0, 3, 1, 3),
    Sketcher.Constraint("Horizontal", 1, 3, 2, 3),
    Sketcher.Constraint("Horizontal", 2, 3, 3, 3),
    Sketcher.Constraint("Diameter", 0, 3.3),
    Sketcher.Constraint("DistanceX", -1, 1, 0, 3, 253.0),
    Sketcher.Constraint("DistanceX", -1, 1, 1, 3, 243.0),
    Sketcher.Constraint("DistanceX", -1, 1, 2, 3, 128.0),
    Sketcher.Constraint("DistanceX", -1, 1, 3, 3, 118.0),
    Sketcher.Constraint("DistanceY", -1, 1, 0, 3, 40.5),
])
sketch17.setExpression("Constraints[6]", "Params.sketch17_diameter")
doc.recompute()
hole8 = doc.addObject("PartDesign::Hole", "Hole007")
body.addObject(hole8)
hole8.Profile = sketch17
hole8.ThreadType = "None"
hole8.setExpression("Diameter", "Params.hole8_diameter")
hole8.DepthType = "Dimension"
hole8.setExpression("Depth", "Params.hole8_depth")
hole8.DrillPoint = "Angled"
hole8.DrillPointAngle = 118
hole8.Reversed = True

# Sketch on XY plane
sketch18 = doc.addObject("Sketcher::SketchObject", "Sketch017")
body.addObject(sketch18)
sketch18.AttachmentSupport = (doc.XY_Plane, [""])
sketch18.MapMode = "FlatFace"
sketch18.AttachmentOffset = App.Placement(V(0, 0, 20), App.Rotation())
sketch18.addGeometry([
    Part.Circle(V(348, 80, 0), V(0, 0, 1), 2.1),
    Part.Circle(V(348, 170, 0), V(0, 0, 1), 2.1),
], False)
sketch18.addConstraint([
    Sketcher.Constraint("Equal", 0, 1),
    Sketcher.Constraint("Vertical", 0, 3, 1, 3),
    Sketcher.Constraint("Diameter", 0, 4.2),
    Sketcher.Constraint("DistanceX", -1, 1, 0, 3, 348.0),
    Sketcher.Constraint("DistanceY", -1, 1, 0, 3, 80.0),
    Sketcher.Constraint("DistanceY", -1, 1, 1, 3, 170.0),
])
sketch18.setExpression("Constraints[2]", "Params.sketch18_diameter")
doc.recompute()
hole9 = doc.addObject("PartDesign::Hole", "Hole008")
body.addObject(hole9)
hole9.Profile = sketch18
hole9.ThreadType = "None"
hole9.setExpression("Diameter", "Params.hole9_diameter")
hole9.DepthType = "Dimension"
hole9.setExpression("Depth", "Params.hole9_depth")
hole9.DrillPoint = "Angled"
hole9.DrillPointAngle = 118

# Sketch on XZ plane
sketch19 = doc.addObject("Sketcher::SketchObject", "Sketch018")
body.addObject(sketch19)
sketch19.AttachmentSupport = (doc.XZ_Plane, [""])
sketch19.MapMode = "FlatFace"
sketch19.AttachmentOffset = App.Placement(V(0, 0, -83.6), App.Rotation())
sketch19.addGeometry([
    Part.LineSegment(V(110, 3, 0), V(110, 0, 0)),
    Part.LineSegment(V(110, 0, 0), V(125.1, 0, 0)),
    Part.LineSegment(V(125.1, 0, 0), V(125.1, 3, 0)),
    Part.LineSegment(V(125.1, 3, 0), V(110, 3, 0)),
], False)
sketch19.addConstraint([
    Sketcher.Constraint("Coincident", 0, 2, 1, 1),
    Sketcher.Constraint("Coincident", 1, 2, 2, 1),
    Sketcher.Constraint("Coincident", 2, 2, 3, 1),
    Sketcher.Constraint("Coincident", 3, 2, 0, 1),
    Sketcher.Constraint("Vertical", 0),
    Sketcher.Constraint("Horizontal", 1),
    Sketcher.Constraint("Vertical", 2),
    Sketcher.Constraint("Horizontal", 3),
    Sketcher.Constraint("PointOnObject", 0, 2, -1),
    Sketcher.Constraint("DistanceY", 0, 2, 0, 1, 3.0),
    Sketcher.Constraint("DistanceX", 1, 1, 1, 2, 15.1),
    Sketcher.Constraint("DistanceX", -1, 1, 0, 2, 110.0),
])
sketch19.setExpression("Constraints[9]", "Params.sketch19_height")
sketch19.setExpression("Constraints[10]", "Params.sketch19_width")
pocket8 = doc.addObject("PartDesign::Pocket", "Pocket007")
body.addObject(pocket8)
pocket8.Profile = sketch19
pocket8.Type = "ThroughAll"

# Sketch on XY plane
sketch20 = doc.addObject("Sketcher::SketchObject", "Sketch019")
body.addObject(sketch20)
sketch20.AttachmentSupport = (doc.XY_Plane, [""])
sketch20.MapMode = "FlatFace"
sketch20.AttachmentOffset = App.Placement(V(0, 0, 20), App.Rotation())
sketch20.addGeometry([
    Part.Circle(V(117.5, 137, 0), V(0, 0, 1), 3.3),
    Part.Circle(V(117.5, 183, 0), V(0, 0, 1), 3.3),
], False)
sketch20.addConstraint([
    Sketcher.Constraint("Equal", 0, 1),
    Sketcher.Constraint("Vertical", 0, 3, 1, 3),
    Sketcher.Constraint("Diameter", 0, 6.6),
    Sketcher.Constraint("DistanceY", -1, 1, 0, 3, 137.0),
    Sketcher.Constraint("DistanceY", -1, 1, 1, 3, 183.0),
    Sketcher.Constraint("DistanceX", -1, 1, 0, 3, 117.55),
])
sketch20.setExpression("Constraints[2]", "Params.sketch20_diameter")
doc.recompute()
hole10 = doc.addObject("PartDesign::Hole", "Hole009")
body.addObject(hole10)
hole10.Profile = sketch20
hole10.ThreadType = "None"
hole10.setExpression("Diameter", "Params.hole10_diameter")
hole10.DepthType = "ThroughAll"
hole10.HoleCutType = "Counterbore"
hole10.setExpression("HoleCutDiameter", "Params.hole10_cbore_diameter")
hole10.setExpression("HoleCutDepth", "Params.hole10_cbore_depth")

doc.recompute()
